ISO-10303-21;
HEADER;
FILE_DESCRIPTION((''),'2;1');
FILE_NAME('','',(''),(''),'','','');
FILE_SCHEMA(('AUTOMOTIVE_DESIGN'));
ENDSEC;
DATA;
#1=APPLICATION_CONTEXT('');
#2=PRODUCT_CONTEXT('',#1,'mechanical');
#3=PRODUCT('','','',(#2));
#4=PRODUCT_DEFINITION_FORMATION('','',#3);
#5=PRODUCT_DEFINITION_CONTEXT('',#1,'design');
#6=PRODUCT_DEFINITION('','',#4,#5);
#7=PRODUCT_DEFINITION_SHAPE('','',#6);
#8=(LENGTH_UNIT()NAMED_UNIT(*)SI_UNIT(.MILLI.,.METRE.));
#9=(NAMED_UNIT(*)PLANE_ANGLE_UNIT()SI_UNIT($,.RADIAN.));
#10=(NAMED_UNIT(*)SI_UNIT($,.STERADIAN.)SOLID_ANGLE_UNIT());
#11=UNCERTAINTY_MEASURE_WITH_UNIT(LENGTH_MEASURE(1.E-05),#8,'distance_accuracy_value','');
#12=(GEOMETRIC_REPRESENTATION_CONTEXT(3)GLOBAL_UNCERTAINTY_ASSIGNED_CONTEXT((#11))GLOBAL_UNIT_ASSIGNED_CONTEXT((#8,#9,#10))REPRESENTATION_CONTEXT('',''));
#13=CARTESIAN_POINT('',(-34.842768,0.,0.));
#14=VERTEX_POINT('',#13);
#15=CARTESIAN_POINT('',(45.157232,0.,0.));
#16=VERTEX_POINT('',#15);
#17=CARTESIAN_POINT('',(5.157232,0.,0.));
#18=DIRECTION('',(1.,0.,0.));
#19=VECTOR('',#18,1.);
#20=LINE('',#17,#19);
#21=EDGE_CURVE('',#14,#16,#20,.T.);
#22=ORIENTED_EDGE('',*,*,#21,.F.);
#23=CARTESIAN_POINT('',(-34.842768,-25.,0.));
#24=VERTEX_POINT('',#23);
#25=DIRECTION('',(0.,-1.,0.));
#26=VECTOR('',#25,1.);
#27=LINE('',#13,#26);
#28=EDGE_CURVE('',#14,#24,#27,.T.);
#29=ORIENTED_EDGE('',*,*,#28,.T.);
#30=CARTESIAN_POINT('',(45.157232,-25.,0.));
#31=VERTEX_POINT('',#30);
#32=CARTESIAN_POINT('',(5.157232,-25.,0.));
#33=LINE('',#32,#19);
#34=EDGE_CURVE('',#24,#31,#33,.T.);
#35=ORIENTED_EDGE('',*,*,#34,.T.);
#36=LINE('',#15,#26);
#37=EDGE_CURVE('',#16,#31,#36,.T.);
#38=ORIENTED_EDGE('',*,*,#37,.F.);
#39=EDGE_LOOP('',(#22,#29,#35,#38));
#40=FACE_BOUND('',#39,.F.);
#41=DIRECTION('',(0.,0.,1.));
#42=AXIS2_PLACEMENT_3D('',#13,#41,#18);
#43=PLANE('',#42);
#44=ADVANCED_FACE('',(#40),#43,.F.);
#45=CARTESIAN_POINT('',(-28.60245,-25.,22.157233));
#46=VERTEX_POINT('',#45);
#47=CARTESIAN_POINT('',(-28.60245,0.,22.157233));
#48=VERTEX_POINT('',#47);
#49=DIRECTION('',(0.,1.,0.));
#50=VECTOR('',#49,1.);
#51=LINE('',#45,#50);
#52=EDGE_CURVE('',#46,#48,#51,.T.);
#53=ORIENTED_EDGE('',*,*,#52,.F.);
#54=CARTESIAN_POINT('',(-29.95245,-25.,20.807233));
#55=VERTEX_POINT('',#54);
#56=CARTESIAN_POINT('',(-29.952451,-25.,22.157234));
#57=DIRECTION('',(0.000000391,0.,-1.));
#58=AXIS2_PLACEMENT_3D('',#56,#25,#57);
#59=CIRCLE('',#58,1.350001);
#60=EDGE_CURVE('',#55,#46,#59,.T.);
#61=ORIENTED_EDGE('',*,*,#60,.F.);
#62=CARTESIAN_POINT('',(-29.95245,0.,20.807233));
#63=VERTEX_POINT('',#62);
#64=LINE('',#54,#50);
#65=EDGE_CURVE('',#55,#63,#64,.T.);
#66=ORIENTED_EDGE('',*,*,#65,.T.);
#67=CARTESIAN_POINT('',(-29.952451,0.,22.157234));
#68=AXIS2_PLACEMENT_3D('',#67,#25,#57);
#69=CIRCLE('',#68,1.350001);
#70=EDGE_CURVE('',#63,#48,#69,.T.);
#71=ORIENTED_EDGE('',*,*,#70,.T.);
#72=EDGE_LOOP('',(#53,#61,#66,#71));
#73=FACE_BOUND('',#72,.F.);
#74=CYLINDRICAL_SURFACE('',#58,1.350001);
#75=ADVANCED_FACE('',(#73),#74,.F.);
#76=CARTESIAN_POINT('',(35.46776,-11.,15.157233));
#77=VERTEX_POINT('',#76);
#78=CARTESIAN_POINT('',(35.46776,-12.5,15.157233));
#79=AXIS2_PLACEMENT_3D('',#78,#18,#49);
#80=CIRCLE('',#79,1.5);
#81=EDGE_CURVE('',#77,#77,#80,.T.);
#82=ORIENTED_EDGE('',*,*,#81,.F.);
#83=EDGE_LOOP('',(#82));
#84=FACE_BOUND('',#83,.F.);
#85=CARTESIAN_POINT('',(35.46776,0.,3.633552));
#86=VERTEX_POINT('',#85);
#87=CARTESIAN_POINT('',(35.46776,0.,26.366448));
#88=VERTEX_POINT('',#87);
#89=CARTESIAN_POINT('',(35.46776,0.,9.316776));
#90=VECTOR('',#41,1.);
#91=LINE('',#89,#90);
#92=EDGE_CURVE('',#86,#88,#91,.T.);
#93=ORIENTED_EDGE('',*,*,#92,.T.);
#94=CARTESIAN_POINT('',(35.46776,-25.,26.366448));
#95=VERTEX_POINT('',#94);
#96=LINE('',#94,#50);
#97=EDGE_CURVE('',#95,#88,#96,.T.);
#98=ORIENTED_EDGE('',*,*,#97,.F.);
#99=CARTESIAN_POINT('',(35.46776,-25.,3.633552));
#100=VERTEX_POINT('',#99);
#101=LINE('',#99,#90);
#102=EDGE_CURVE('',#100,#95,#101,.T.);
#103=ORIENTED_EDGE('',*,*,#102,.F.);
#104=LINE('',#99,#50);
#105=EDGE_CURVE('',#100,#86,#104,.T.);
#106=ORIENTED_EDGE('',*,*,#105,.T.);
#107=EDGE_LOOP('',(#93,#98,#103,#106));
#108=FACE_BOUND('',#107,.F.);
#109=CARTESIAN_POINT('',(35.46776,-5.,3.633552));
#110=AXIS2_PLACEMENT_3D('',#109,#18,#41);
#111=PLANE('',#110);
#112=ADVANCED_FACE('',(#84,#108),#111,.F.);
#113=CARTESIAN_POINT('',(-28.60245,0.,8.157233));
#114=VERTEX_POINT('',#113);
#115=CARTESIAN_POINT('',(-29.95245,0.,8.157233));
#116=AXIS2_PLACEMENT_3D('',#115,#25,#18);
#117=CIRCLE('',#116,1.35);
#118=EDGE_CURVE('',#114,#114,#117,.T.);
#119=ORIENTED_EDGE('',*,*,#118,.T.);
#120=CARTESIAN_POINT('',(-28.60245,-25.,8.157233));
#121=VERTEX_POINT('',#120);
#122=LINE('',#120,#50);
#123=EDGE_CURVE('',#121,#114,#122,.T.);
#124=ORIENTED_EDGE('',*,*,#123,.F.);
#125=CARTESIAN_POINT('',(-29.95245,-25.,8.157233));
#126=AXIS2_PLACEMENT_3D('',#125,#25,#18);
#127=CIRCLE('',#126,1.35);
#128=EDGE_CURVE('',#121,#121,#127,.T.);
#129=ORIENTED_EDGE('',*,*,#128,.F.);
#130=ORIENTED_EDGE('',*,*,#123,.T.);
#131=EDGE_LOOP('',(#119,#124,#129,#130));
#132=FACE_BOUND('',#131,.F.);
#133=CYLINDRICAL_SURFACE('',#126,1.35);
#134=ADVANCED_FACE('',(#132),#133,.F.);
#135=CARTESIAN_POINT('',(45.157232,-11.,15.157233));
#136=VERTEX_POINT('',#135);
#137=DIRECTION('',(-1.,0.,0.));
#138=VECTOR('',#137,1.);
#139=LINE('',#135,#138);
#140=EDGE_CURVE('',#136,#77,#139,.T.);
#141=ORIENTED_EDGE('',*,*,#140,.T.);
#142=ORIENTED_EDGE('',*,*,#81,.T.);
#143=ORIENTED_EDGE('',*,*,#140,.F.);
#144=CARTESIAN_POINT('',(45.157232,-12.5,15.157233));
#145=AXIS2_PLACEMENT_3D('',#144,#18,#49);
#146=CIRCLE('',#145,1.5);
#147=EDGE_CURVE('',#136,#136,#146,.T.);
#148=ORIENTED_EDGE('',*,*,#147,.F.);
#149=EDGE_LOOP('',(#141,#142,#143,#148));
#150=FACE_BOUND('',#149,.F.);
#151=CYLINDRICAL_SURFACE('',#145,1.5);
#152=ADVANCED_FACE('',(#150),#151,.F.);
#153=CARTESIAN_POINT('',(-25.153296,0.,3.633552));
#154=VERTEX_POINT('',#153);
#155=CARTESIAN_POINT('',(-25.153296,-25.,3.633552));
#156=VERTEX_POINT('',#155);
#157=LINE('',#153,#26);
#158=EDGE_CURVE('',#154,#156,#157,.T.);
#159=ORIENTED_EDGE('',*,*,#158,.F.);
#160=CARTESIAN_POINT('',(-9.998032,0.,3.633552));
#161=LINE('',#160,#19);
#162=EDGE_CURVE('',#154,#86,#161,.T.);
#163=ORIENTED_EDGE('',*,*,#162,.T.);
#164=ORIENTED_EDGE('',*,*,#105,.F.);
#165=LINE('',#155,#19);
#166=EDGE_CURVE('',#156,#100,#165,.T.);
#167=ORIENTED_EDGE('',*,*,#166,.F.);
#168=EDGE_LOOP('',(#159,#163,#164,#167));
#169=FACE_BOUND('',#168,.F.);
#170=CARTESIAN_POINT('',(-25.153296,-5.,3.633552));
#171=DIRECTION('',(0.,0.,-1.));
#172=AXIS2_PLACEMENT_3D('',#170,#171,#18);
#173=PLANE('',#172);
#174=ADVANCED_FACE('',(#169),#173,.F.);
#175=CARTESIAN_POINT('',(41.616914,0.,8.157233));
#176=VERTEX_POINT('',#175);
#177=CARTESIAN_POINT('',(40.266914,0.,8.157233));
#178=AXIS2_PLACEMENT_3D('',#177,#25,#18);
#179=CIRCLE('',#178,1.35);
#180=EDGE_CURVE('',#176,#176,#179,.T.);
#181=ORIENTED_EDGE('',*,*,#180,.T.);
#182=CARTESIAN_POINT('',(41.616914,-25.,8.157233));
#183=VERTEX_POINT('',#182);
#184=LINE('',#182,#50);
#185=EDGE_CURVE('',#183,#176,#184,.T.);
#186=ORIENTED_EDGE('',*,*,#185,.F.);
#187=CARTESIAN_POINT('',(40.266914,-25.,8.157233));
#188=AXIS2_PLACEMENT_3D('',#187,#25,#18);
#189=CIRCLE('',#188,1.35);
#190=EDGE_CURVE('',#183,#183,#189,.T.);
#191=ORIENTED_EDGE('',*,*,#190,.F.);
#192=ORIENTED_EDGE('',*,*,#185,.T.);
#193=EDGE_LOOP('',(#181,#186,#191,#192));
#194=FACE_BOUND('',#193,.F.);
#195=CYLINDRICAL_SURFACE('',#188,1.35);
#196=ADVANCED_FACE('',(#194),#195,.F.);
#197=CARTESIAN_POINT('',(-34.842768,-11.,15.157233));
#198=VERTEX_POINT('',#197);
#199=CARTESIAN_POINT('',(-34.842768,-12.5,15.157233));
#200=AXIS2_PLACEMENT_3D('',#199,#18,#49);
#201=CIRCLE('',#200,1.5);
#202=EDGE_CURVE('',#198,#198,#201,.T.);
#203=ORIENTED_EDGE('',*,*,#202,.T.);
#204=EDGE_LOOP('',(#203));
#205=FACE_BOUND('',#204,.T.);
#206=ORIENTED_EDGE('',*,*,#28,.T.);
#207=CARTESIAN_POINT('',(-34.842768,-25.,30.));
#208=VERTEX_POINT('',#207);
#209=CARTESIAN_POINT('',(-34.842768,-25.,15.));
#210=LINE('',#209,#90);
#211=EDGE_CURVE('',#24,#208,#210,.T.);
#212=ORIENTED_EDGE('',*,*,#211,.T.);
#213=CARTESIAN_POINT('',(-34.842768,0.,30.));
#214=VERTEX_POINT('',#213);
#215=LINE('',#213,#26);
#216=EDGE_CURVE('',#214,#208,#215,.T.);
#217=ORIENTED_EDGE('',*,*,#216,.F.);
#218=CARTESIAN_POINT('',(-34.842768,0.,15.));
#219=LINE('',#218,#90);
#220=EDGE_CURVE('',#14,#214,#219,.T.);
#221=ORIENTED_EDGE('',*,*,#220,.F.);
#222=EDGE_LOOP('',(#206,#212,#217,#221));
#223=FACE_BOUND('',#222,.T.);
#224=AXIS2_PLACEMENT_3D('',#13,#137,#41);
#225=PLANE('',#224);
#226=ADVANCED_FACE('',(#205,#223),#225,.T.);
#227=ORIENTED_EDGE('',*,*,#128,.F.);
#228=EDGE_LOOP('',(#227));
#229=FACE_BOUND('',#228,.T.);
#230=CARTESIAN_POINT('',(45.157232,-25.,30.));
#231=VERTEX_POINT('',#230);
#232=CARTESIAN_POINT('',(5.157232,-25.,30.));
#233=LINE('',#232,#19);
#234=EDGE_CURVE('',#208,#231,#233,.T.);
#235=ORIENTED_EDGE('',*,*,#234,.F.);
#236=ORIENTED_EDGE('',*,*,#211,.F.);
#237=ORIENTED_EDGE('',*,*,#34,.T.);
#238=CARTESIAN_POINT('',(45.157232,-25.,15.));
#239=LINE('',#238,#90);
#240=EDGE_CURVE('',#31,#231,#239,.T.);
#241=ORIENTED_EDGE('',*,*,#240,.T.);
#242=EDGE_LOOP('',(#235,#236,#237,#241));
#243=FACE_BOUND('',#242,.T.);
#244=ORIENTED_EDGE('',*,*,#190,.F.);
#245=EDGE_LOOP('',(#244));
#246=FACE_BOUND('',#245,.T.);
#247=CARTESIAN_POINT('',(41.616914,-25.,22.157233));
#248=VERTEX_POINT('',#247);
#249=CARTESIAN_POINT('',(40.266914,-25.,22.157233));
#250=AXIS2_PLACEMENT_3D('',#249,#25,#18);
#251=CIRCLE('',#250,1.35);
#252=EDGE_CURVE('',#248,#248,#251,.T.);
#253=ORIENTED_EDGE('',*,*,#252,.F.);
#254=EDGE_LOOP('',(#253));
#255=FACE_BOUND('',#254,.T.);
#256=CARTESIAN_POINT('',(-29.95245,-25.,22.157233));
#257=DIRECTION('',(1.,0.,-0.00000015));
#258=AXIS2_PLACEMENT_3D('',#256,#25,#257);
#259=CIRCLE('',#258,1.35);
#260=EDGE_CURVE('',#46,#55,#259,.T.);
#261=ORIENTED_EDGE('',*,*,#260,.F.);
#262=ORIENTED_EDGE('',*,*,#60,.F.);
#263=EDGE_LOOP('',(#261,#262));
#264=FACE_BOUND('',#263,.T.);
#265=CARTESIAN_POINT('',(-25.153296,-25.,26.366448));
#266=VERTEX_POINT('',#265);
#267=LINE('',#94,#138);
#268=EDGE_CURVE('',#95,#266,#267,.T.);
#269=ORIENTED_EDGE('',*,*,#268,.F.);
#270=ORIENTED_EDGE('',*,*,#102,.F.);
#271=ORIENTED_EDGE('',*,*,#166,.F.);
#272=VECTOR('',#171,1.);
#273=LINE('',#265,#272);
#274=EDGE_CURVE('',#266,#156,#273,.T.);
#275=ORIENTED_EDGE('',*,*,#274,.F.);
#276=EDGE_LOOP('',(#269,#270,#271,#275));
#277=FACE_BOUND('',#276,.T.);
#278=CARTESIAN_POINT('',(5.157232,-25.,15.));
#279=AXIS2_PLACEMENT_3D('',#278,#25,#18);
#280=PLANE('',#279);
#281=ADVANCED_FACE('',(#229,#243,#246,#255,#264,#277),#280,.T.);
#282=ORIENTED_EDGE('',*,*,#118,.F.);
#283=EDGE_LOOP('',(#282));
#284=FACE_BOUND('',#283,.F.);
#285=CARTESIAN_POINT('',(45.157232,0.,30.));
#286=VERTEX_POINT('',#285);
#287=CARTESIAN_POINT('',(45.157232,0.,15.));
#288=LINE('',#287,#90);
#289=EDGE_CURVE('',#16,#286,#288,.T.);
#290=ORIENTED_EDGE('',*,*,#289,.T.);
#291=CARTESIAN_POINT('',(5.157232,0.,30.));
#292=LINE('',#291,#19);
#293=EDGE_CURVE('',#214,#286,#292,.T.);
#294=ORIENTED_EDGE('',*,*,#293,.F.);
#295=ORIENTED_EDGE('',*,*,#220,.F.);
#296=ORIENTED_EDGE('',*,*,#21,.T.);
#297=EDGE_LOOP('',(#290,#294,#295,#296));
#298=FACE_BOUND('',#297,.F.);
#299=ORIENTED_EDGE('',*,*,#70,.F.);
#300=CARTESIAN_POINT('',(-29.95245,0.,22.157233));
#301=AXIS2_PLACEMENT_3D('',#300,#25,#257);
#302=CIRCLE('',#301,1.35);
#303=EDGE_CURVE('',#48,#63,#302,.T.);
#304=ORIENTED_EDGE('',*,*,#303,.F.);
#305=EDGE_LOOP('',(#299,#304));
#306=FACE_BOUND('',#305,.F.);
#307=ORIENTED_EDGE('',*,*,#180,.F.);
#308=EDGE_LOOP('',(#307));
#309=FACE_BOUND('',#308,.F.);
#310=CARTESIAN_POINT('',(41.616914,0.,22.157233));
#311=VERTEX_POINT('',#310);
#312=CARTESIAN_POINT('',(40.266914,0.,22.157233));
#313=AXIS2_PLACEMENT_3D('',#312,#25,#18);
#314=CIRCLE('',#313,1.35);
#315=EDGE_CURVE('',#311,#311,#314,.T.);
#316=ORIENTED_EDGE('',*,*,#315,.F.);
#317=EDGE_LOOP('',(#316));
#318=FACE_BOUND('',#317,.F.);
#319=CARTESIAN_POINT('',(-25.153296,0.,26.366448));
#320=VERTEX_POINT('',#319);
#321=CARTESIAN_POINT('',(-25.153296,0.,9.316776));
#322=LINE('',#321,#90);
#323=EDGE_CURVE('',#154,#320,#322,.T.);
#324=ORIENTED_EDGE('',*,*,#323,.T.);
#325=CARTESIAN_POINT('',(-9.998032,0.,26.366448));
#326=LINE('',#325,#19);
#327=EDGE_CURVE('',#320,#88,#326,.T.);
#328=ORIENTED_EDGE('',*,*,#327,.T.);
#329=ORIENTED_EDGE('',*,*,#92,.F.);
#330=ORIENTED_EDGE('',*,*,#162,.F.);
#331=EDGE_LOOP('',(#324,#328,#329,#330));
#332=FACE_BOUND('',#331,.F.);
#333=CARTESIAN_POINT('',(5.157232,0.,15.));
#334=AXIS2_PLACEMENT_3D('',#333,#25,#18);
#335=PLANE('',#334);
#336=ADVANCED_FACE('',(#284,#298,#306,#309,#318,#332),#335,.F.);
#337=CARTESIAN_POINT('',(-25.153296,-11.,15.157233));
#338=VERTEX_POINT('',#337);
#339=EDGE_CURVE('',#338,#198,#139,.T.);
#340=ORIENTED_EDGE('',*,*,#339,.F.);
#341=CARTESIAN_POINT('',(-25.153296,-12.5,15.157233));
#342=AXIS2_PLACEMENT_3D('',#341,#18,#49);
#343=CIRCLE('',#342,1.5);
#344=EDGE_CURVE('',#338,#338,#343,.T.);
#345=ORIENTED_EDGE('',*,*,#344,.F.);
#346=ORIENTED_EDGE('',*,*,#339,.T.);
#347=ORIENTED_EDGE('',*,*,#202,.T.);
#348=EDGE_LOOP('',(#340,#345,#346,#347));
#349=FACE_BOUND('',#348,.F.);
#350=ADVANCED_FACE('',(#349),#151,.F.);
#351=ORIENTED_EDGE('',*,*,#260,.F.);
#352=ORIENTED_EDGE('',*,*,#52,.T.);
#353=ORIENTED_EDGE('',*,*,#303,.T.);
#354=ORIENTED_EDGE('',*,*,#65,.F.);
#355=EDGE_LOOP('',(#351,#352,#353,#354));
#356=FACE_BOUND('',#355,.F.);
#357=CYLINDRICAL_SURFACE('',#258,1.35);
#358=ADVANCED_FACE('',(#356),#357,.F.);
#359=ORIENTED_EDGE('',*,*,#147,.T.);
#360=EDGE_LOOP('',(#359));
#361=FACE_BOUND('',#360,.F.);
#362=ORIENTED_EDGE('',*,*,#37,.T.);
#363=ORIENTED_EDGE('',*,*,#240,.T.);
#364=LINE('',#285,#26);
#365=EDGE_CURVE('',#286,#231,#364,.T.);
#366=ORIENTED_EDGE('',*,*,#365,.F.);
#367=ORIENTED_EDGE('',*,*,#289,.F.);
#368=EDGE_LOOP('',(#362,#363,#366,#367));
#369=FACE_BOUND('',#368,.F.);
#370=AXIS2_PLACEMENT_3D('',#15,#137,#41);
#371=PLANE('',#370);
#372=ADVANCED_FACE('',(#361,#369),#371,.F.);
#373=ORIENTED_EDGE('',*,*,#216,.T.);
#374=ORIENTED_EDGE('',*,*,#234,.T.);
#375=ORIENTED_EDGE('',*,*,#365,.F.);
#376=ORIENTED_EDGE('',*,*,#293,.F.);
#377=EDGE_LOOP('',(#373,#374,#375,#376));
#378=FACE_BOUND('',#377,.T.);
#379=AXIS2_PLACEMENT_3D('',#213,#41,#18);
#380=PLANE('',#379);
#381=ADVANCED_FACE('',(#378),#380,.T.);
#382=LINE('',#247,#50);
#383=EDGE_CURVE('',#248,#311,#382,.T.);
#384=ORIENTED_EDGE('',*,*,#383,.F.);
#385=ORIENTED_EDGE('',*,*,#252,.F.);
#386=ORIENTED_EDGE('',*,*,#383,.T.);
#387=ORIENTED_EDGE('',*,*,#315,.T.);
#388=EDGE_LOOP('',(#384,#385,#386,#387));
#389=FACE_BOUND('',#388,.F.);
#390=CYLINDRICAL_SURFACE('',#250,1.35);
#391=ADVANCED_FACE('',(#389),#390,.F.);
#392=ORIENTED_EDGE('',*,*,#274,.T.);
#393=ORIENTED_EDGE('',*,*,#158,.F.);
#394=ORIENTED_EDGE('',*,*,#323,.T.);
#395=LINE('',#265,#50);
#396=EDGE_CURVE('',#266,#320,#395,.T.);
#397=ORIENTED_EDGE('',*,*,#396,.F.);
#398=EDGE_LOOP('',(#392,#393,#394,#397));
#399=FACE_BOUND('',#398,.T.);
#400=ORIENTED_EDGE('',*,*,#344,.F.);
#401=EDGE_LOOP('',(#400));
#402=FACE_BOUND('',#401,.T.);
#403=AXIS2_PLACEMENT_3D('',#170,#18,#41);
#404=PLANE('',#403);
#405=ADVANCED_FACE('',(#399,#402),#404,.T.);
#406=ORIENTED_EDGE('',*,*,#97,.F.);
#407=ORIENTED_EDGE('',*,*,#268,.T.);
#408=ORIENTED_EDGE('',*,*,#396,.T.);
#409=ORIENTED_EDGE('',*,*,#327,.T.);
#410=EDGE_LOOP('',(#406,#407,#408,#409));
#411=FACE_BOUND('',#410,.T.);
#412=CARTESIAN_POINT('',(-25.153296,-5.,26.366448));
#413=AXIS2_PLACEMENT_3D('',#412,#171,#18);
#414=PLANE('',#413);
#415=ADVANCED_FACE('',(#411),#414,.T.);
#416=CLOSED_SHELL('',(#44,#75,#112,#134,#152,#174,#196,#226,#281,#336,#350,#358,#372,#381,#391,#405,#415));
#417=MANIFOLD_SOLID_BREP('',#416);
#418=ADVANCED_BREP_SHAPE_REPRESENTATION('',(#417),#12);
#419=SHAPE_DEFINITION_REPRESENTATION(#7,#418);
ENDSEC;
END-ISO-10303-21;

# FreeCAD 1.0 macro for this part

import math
import FreeCAD as App
import Part
import Sketcher
from FreeCAD import Vector


def add_polygon(sketch, points):
    """Adds a closed chain of lines whose ends are joined by coincident constraints."""
    first, n = sketch.GeometryCount, len(points)
    for a, b in zip(points, points[1:] + points[:1]):
        sketch.addGeometry(Part.LineSegment(App.Vector(*a, 0), App.Vector(*b, 0)), False)
    for i in range(n):
        sketch.addConstraint(Sketcher.Constraint("Coincident", first + i, 2, first + (i + 1) % n, 1))

doc = App.newDocument("Part")
body = doc.addObject("PartDesign::Body", "Body")

# Sketch on XZ plane
sketch1 = body.newObject("Sketcher::SketchObject", "Sketch")
sketch1.AttachmentSupport = (doc.getObject("XZ_Plane"), [""])
sketch1.MapMode = "FlatFace"
add_polygon(sketch1, [(-35, 30), (-35, 0), (45, 0), (45, 30)])  # lines 0-3
sketch1.addConstraint([
    Sketcher.Constraint("Vertical", 0),
    Sketcher.Constraint("Horizontal", 1),
    Sketcher.Constraint("Vertical", 2),
    Sketcher.Constraint("Horizontal", 3),
    Sketcher.Constraint("PointOnObject", 0, 2, -1),
    Sketcher.Constraint("DistanceX", 1, 1, 1, 2, 80.0),
    Sketcher.Constraint("DistanceY", 0, 2, 0, 1, 30.0),
    Sketcher.Constraint("DistanceX", 0, 2, -1, 1, 34.842768),
])
pad1 = body.newObject("PartDesign::Pad", "Pad")
pad1.Profile = sketch1
pad1.Length = 25

# Sketch on XZ plane
sketch2 = body.newObject("Sketcher::SketchObject", "Sketch001")
sketch2.AttachmentSupport = (doc.getObject("XZ_Plane"), [""])
sketch2.MapMode = "FlatFace"
sketch2.AttachmentOffset = App.Placement(Vector(0, 0, 25), App.Rotation())
add_polygon(sketch2, [(35, 26), (-25, 26), (-25, 4), (35, 4)])  # lines 0-3
sketch2.addConstraint([
    Sketcher.Constraint("Horizontal", 0),
    Sketcher.Constraint("Vertical", 1),
    Sketcher.Constraint("Horizontal", 2),
    Sketcher.Constraint("Vertical", 3),
    Sketcher.Constraint("DistanceX", 0, 2, 0, 1, 60.621056),
    Sketcher.Constraint("DistanceY", 1, 2, 1, 1, 22.732896),
    Sketcher.Constraint("DistanceY", -1, 1, 1, 2, 3.633552),
    Sketcher.Constraint("DistanceX", -1, 1, 2, 2, 35.46776),
])
pocket1 = body.newObject("PartDesign::Pocket", "Pocket")
pocket1.Profile = sketch2
pocket1.Length = 20

# Sketch on YZ plane
sketch3 = body.newObject("Sketcher::SketchObject", "Sketch002")
sketch3.AttachmentSupport = (doc.getObject("YZ_Plane"), [""])
sketch3.MapMode = "FlatFace"
sketch3.AttachmentOffset = App.Placement(Vector(0, 0, 45.157232), App.Rotation())
sketch3.addGeometry(Part.Circle(Vector(-12.5, 15.2, 0), Vector(0, 0, 1), 1.5), False)
sketch3.addConstraint([
    Sketcher.Constraint("Diameter", 0, 3.0),
    Sketcher.Constraint("DistanceX", 0, 3, -1, 1, 12.5),
    Sketcher.Constraint("DistanceY", -1, 1, 0, 3, 15.157233),
])
pocket2 = body.newObject("PartDesign::Pocket", "Pocket001")
pocket2.Profile = sketch3
pocket2.Length = 1000

# Sketch on XZ plane
sketch4 = body.newObject("Sketcher::SketchObject", "Sketch003")
sketch4.AttachmentSupport = (doc.getObject("XZ_Plane"), [""])
sketch4.MapMode = "FlatFace"
sketch4.AttachmentOffset = App.Placement(Vector(0, 0, 5), App.Rotation())
add_polygon(sketch4, [(-25, 26), (-25, 4), (35, 4), (35, 26)])  # lines 0-3
sketch4.addConstraint([
    Sketcher.Constraint("Vertical", 0),
    Sketcher.Constraint("Horizontal", 1),
    Sketcher.Constraint("Vertical", 2),
    Sketcher.Constraint("Horizontal", 3),
    Sketcher.Constraint("DistanceX", 1, 1, 1, 2, 60.621056),
    Sketcher.Constraint("DistanceY", 0, 2, 0, 1, 22.732896),
    Sketcher.Constraint("DistanceY", -1, 1, 0, 2, 3.633552),
    Sketcher.Constraint("DistanceX", -1, 1, 1, 2, 35.46776),
])
pocket3 = body.newObject("PartDesign::Pocket", "Pocket002")
pocket3.Profile = sketch4
pocket3.Length = 25

# Sketch on XZ plane
sketch5 = body.newObject("Sketcher::SketchObject", "Sketch004")
sketch5.AttachmentSupport = (doc.getObject("XZ_Plane"), [""])
sketch5.MapMode = "FlatFace"
sketch5.AttachmentOffset = App.Placement(Vector(0, 0, 25), App.Rotation())
sketch5.addGeometry([
    Part.ArcOfCircle(Part.Circle(Vector(-30, 22.2, 0), Vector(0, 0, 1), 1.4), math.radians(-90), math.radians(0)),  # 0
    Part.ArcOfCircle(Part.Circle(Vector(-30, 22.2, 0), Vector(0, 0, 1), 1.4), math.radians(0), math.radians(270)),  # 1
    Part.Circle(Vector(-30, 8.2, 0), Vector(0, 0, 1), 1.4),  # 2
    Part.Circle(Vector(40.3, 8.2, 0), Vector(0, 0, 1), 1.4),  # 3
    Part.Circle(Vector(40.3, 22.2, 0), Vector(0, 0, 1), 1.4),  # 4
    Part.Circle(Vector(-12.7, -18, 0), Vector(0, 0, 1), 1),  # 5
], False)
sketch5.addConstraint([
    Sketcher.Constraint("Tangent", 0, 1, 1, 2),
    Sketcher.Constraint("Coincident", 1, 1, 0, 2),
    Sketcher.Constraint("Equal", 1, 2),
    Sketcher.Constraint("Equal", 2, 3),
    Sketcher.Constraint("Equal", 3, 4),
    Sketcher.Constraint("Horizontal", 2, 3, 3, 3),
    Sketcher.Constraint("Horizontal", 1, 3, 4, 3),
    Sketcher.Constraint("Horizontal", 4, 3, 1, 1),
    Sketcher.Constraint("Vertical", 1, 3, 2, 3),
    Sketcher.Constraint("Vertical", 3, 3, 4, 3),
    Sketcher.Constraint("Vertical", 2, 3, 0, 1),
    Sketcher.Constraint("Diameter", 5, 2.0),
    Sketcher.Constraint("Diameter", 2, 2.7),
    Sketcher.Constraint("DistanceY", 2, 3, 1, 3, 14.0),
    Sketcher.Constraint("DistanceX", 0, 3, -1, 1, 29.952451),
    Sketcher.Constraint("DistanceX", 5, 3, -1, 1, 12.661189),
    Sketcher.Constraint("DistanceY", 5, 3, 2, 3, 26.205589),
    Sketcher.Constraint("DistanceY", -1, 1, 0, 3, 22.157234),
    Sketcher.Constraint("DistanceX", -1, 1, 3, 3, 40.266914),
])
pocket4 = body.newObject("PartDesign::Pocket", "Pocket003")
pocket4.Profile = sketch5
pocket4.Length = 100000

doc.recompute()
